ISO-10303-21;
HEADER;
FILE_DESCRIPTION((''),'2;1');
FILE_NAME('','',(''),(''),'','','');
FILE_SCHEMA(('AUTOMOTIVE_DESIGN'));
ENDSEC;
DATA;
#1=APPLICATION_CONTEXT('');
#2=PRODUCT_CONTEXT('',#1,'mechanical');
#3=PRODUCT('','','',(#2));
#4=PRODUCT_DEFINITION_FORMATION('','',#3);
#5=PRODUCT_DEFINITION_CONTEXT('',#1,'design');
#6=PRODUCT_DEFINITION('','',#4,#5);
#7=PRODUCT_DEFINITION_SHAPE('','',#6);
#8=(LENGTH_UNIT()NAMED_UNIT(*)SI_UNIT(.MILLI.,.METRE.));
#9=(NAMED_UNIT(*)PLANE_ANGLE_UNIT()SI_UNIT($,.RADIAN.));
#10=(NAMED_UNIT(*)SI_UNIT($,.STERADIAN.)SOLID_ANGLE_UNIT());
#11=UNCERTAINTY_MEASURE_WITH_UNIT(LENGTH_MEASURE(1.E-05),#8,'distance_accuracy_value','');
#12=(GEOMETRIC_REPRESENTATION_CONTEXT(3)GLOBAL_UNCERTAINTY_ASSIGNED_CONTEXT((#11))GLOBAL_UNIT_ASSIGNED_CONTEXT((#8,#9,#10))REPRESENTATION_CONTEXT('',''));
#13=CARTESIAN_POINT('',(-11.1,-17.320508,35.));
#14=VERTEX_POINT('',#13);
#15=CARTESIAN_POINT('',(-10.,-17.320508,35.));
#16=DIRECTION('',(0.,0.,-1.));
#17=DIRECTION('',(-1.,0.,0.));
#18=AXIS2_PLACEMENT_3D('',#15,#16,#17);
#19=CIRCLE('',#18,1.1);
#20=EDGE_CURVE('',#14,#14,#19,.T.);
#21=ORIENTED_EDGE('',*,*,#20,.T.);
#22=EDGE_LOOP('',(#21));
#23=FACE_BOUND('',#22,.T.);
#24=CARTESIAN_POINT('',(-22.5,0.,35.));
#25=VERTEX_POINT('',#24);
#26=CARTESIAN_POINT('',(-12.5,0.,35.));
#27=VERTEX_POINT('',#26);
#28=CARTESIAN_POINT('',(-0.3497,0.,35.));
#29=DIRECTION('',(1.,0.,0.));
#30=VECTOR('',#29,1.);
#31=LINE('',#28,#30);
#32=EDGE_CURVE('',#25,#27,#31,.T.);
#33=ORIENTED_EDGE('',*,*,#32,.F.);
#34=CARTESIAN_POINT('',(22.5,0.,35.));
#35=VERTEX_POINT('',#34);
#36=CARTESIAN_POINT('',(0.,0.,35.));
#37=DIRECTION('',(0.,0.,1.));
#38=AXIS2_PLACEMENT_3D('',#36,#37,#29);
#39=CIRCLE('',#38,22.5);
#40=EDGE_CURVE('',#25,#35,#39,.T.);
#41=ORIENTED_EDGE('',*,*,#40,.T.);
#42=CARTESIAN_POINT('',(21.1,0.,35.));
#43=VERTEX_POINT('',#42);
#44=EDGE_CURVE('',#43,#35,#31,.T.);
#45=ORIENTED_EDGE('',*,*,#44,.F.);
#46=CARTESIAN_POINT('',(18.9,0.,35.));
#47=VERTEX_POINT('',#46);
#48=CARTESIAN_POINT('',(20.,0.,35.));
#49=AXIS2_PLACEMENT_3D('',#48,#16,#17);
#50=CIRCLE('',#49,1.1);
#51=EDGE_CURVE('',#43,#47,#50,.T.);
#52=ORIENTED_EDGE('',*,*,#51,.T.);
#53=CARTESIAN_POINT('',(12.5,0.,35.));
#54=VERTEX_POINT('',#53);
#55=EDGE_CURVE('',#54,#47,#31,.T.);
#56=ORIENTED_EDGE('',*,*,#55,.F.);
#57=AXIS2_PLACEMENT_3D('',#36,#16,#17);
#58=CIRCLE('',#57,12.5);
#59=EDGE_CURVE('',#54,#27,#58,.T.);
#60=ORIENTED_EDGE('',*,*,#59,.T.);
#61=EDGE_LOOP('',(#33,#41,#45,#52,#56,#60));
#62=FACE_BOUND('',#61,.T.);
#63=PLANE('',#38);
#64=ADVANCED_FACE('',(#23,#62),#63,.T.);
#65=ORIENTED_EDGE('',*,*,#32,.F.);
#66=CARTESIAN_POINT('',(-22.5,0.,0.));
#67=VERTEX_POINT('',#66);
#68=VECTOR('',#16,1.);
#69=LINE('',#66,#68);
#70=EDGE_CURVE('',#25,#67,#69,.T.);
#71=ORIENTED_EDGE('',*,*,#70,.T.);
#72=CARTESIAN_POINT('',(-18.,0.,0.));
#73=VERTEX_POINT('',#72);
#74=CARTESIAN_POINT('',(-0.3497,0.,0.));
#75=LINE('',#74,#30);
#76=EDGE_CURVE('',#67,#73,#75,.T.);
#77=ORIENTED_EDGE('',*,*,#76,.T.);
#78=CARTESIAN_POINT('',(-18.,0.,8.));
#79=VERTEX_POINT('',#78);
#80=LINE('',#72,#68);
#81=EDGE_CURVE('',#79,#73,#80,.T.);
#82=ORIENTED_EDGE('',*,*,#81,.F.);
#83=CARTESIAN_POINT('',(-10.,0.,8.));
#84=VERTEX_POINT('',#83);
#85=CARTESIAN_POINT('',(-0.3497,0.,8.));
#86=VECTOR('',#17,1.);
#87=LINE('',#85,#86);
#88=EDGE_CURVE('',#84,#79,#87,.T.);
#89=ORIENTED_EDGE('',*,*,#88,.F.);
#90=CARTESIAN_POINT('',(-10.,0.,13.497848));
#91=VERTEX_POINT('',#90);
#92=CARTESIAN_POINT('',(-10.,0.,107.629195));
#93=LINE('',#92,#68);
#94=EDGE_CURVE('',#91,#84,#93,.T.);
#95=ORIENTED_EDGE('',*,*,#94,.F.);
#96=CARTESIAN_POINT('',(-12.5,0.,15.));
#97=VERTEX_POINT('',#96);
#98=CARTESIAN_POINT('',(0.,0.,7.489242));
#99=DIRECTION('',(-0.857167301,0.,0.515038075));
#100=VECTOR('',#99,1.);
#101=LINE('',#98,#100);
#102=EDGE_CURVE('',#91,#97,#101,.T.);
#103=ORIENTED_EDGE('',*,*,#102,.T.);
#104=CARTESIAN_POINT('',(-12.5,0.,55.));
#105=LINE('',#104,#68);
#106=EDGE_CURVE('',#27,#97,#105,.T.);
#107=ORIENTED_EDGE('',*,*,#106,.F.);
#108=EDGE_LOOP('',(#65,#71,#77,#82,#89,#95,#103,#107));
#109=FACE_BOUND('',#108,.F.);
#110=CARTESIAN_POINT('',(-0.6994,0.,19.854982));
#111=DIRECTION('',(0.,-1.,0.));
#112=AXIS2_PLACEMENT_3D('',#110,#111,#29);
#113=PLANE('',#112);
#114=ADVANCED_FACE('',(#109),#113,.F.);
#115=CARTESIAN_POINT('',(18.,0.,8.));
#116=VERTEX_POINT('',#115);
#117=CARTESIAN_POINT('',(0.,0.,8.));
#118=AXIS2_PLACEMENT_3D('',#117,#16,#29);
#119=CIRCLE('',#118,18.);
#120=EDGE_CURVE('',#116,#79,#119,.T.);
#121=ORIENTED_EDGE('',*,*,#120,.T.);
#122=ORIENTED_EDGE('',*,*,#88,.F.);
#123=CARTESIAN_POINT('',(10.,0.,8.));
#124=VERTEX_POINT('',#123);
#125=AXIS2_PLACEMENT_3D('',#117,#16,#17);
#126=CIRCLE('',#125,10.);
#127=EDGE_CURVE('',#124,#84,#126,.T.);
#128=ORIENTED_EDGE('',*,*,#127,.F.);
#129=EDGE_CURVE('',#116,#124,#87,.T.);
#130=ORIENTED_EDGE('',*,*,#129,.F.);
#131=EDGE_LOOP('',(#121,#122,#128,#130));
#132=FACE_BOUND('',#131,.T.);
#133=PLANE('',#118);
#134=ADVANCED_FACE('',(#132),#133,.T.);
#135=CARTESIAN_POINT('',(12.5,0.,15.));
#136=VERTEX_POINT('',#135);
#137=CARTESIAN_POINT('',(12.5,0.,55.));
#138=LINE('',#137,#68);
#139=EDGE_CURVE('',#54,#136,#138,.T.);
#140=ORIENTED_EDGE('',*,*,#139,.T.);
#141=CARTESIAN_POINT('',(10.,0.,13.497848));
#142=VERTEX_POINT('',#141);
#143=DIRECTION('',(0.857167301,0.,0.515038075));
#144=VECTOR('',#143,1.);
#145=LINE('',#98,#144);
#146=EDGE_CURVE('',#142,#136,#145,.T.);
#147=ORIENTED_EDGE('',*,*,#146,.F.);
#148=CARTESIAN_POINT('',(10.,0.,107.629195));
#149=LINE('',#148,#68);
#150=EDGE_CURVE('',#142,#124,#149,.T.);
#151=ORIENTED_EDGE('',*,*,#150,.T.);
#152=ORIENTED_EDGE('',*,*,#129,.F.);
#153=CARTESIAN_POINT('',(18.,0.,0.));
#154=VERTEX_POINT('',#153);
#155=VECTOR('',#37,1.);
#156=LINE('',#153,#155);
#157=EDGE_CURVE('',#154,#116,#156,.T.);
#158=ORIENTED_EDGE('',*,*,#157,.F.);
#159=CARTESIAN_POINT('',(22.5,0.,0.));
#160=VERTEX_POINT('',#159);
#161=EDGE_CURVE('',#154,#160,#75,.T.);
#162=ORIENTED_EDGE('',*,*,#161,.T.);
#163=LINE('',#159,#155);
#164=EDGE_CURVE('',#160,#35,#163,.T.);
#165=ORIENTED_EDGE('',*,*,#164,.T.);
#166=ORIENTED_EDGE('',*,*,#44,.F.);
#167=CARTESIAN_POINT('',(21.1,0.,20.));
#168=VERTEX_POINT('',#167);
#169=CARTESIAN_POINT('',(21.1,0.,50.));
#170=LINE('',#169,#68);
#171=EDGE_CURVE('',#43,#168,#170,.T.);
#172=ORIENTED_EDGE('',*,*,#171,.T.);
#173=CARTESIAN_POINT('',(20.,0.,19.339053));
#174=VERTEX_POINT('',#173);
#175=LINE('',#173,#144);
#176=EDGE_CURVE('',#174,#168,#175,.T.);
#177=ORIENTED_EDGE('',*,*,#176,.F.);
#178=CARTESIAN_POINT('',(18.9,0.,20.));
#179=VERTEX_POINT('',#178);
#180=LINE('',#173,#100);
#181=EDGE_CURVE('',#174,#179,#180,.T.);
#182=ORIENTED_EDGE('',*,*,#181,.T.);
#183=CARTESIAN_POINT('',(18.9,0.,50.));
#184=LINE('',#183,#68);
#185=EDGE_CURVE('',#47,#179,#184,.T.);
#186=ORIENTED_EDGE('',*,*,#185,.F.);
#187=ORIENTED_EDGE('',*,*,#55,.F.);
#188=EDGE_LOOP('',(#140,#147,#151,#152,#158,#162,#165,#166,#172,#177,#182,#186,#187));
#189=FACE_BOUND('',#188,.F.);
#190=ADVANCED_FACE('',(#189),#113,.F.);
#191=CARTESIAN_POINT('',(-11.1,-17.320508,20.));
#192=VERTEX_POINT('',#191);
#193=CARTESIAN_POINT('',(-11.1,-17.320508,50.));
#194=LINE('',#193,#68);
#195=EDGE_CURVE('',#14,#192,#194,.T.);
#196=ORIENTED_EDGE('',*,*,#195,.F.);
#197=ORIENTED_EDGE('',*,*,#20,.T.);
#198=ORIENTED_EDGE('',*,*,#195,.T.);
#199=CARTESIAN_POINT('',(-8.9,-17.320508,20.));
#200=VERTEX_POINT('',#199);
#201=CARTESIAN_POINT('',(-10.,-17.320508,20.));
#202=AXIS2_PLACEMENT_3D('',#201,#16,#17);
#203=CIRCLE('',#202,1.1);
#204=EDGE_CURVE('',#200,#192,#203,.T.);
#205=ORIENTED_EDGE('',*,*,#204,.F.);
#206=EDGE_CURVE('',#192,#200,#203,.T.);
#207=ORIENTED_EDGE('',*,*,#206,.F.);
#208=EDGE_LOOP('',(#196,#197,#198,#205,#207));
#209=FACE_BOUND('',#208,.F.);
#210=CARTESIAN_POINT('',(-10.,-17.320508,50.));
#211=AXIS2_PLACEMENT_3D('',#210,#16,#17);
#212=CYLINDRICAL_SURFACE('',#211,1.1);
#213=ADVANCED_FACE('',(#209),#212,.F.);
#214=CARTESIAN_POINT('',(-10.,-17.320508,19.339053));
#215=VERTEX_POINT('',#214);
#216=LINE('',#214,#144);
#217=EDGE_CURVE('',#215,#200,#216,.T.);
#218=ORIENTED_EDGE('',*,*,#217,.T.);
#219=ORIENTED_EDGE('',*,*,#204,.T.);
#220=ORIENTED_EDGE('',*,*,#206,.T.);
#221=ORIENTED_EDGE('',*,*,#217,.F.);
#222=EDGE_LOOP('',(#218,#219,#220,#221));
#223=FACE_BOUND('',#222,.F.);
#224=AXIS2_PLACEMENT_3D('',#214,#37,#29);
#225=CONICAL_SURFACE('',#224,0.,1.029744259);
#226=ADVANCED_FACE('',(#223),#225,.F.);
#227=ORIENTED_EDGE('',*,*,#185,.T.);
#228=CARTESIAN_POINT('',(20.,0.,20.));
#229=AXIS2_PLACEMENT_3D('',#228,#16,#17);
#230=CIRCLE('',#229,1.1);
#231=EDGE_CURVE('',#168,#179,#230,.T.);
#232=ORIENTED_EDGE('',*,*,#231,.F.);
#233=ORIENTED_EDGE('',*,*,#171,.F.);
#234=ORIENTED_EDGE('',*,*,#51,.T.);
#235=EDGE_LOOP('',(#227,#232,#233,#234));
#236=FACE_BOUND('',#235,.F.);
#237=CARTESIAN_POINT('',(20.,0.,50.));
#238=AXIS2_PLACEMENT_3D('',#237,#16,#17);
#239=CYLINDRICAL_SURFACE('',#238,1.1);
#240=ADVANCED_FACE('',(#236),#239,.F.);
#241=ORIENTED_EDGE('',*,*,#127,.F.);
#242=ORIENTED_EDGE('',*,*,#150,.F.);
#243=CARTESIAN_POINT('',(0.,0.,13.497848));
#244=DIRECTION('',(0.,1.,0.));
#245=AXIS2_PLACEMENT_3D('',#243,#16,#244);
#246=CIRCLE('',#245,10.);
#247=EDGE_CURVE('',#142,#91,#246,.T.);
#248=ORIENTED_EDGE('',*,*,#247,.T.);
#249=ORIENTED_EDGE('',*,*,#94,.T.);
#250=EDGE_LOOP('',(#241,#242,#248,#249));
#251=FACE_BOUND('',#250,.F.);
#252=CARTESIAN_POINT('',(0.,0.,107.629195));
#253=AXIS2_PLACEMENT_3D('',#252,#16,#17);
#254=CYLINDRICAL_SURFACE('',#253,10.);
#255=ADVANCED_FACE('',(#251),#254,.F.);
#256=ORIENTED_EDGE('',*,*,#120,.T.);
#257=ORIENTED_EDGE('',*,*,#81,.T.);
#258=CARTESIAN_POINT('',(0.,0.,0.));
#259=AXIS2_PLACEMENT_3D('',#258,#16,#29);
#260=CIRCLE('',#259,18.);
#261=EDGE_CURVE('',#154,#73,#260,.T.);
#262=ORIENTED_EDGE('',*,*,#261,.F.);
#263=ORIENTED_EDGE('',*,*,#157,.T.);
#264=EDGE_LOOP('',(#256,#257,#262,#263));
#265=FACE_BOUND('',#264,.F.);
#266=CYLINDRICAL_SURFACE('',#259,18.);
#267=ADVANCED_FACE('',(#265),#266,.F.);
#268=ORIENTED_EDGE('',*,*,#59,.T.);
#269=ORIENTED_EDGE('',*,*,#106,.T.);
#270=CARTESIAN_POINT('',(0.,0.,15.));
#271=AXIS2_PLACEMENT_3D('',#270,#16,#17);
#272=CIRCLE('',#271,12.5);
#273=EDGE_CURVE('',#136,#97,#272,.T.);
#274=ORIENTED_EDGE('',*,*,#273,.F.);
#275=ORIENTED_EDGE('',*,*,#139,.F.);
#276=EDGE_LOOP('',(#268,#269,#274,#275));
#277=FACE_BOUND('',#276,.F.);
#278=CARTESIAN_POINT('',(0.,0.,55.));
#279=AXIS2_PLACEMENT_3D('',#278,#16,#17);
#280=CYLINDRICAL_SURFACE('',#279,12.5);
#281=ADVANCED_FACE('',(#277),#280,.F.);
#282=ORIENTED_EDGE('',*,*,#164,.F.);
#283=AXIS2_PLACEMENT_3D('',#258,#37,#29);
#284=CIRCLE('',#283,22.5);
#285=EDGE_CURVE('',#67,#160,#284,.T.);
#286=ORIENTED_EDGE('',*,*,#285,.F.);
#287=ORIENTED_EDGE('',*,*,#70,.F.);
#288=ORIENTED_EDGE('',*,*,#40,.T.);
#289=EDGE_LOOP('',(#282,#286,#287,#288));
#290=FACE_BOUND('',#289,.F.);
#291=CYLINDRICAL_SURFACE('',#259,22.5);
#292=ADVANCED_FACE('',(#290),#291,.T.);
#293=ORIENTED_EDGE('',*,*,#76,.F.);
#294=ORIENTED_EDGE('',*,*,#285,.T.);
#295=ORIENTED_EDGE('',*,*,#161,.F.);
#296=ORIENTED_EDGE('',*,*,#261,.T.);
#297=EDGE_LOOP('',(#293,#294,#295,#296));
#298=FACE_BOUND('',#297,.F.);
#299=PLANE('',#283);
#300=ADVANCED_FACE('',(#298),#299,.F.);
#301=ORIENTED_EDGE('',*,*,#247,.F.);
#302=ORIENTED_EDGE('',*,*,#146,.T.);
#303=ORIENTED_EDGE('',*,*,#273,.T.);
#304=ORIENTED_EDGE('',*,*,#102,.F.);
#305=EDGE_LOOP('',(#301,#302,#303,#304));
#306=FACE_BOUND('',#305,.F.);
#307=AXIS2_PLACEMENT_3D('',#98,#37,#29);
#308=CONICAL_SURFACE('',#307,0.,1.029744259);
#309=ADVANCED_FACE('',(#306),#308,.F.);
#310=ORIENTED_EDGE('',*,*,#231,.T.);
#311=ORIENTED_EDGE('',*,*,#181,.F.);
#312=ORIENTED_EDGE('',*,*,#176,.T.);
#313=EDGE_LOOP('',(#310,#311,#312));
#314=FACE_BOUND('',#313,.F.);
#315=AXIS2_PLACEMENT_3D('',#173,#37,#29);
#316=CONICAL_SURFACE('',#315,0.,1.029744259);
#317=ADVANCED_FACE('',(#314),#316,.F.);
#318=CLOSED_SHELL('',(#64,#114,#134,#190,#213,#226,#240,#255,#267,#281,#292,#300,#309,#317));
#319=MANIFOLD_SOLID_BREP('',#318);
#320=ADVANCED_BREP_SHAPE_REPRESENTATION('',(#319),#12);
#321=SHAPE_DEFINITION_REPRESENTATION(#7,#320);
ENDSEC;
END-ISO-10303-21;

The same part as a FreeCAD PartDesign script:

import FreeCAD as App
import Part
import Sketcher

doc = App.newDocument("Part")
params = doc.addObject("Spreadsheet::Sheet", "Params")
for row, (alias, value) in enumerate([
    ("sketch1_diameter", "45 mm"),
    ("pad1_length", "35 mm"),
    ("sketch2_diameter", "36 mm"),
    ("pocket1_length", "8 mm"),
    ("sketch3_diameter", "25 mm"),
    ("hole_diameter", "25 mm"),
    ("hole_depth", "20 mm"),
    ("sketch4_diameter", "20 mm"),
    ("hole2_diameter", "20 mm"),
    ("sketch5_diameter", "2.2 mm"),
    ("hole3_diameter", "2.2 mm"),
    ("hole3_depth", "15 mm"),
    ("pocket2_length", "25 mm"),
], start=1):
    params.set(f"A{row}", alias)
    params.set(f"B{row}", "=" + value)
    params.setAlias(f"B{row}", alias)

body = doc.addObject("PartDesign::Body", "Body")

# Sketch on XY plane
sketch1 = body.newObject("Sketcher::SketchObject", "Sketch")
sketch1.AttachmentSupport = (doc.getObject("XY_Plane"), [""])
sketch1.MapMode = "FlatFace"
sketch1.addGeometry(Part.Circle(App.Vector(0, 0, 0), App.Vector(0, 0, 1), 22.5), False)
sketch1.addConstraint(Sketcher.Constraint("Coincident", 0, 3, -1, 1))
sketch1.addConstraint(Sketcher.Constraint("Diameter", 0, 45.0))
sketch1.setExpression("Constraints[1]", "Params.sketch1_diameter")
pad1 = body.newObject("PartDesign::Pad", "Pad")
pad1.Profile = sketch1
pad1.setExpression("Length", "Params.pad1_length")

# Sketch on XY plane
sketch2 = body.newObject("Sketcher::SketchObject", "Sketch001")
sketch2.AttachmentSupport = (doc.getObject("XY_Plane"), [""])
sketch2.MapMode = "FlatFace"
sketch2.addGeometry(Part.Circle(App.Vector(0, 0, 0), App.Vector(0, 0, 1), 18), False)
sketch2.addConstraint(Sketcher.Constraint("Coincident", 0, 3, -1, 1))
sketch2.addConstraint(Sketcher.Constraint("Diameter", 0, 36.0))
sketch2.setExpression("Constraints[1]", "Params.sketch2_diameter")
pocket1 = body.newObject("PartDesign::Pocket", "Pocket")
pocket1.Profile = sketch2
pocket1.setExpression("Length", "Params.pocket1_length")
pocket1.Reversed = True

# Sketch on XY plane
sketch3 = body.newObject("Sketcher::SketchObject", "Sketch002")
sketch3.AttachmentSupport = (doc.getObject("XY_Plane"), [""])
sketch3.MapMode = "FlatFace"
sketch3.AttachmentOffset = App.Placement(App.Vector(0, 0, 35), App.Rotation())
sketch3.addGeometry(Part.Circle(App.Vector(0, 0, 0), App.Vector(0, 0, 1), 12.5), False)
sketch3.addConstraint(Sketcher.Constraint("Coincident", 0, 3, -1, 1))
sketch3.addConstraint(Sketcher.Constraint("Diameter", 0, 25.0))
sketch3.setExpression("Constraints[1]", "Params.sketch3_diameter")
doc.recompute()
hole = body.newObject("PartDesign::Hole", "Hole")
hole.Profile = sketch3
hole.ThreadType = "None"
hole.setExpression("Diameter", "Params.hole_diameter")
hole.DepthType = "Dimension"
hole.setExpression("Depth", "Params.hole_depth")
hole.DrillPoint = "Angled"
hole.DrillPointAngle = 118

# Sketch on XY plane
sketch4 = body.newObject("Sketcher::SketchObject", "Sketch003")
sketch4.AttachmentSupport = (doc.getObject("XY_Plane"), [""])
sketch4.MapMode = "FlatFace"
sketch4.AttachmentOffset = App.Placement(App.Vector(0, 0, 35), App.Rotation())
sketch4.addGeometry(Part.Circle(App.Vector(0, 0, 0), App.Vector(0, 0, 1), 10), False)
sketch4.addConstraint(Sketcher.Constraint("Coincident", 0, 3, -1, 1))
sketch4.addConstraint(Sketcher.Constraint("Diameter", 0, 20.0))
sketch4.setExpression("Constraints[1]", "Params.sketch4_diameter")
doc.recompute()
hole2 = body.newObject("PartDesign::Hole", "Hole001")
hole2.Profile = sketch4
hole2.ThreadType = "None"
hole2.setExpression("Diameter", "Params.hole2_diameter")
hole2.DepthType = "ThroughAll"

# Sketch on XY plane
sketch5 = body.newObject("Sketcher::SketchObject", "Sketch004")
sketch5.AttachmentSupport = (doc.getObject("XY_Plane"), [""])
sketch5.MapMode = "FlatFace"
sketch5.AttachmentOffset = App.Placement(App.Vector(0, 0, 35), App.Rotation())
sketch5.addGeometry(Part.Circle(App.Vector(20, 0, 0), App.Vector(0, 0, 1), 1.1), False)
sketch5.addGeometry(Part.Circle(App.Vector(-10, 17.320508, 0), App.Vector(0, 0, 1), 1.1), False)
sketch5.addGeometry(Part.Circle(App.Vector(-10, -17.320508, 0), App.Vector(0, 0, 1), 1.1), False)
sketch5.addConstraint(Sketcher.Constraint("Equal", 0, 1))
sketch5.addConstraint(Sketcher.Constraint("Equal", 1, 2))
sketch5.addConstraint(Sketcher.Constraint("Symmetric", 1, 3, 2, 3, -1))
sketch5.addConstraint(Sketcher.Constraint("PointOnObject", 0, 3, -1))
sketch5.addConstraint(Sketcher.Constraint("Diameter", 0, 2.2))
sketch5.addConstraint(Sketcher.Constraint("DistanceX", -1, 1, 0, 3, 20.0))
sketch5.addConstraint(Sketcher.Constraint("DistanceX", 1, 3, -1, 1, 10.0))
sketch5.addConstraint(Sketcher.Constraint("DistanceY", -1, 1, 1, 3, 17.320508))
sketch5.setExpression("Constraints[4]", "Params.sketch5_diameter")
doc.recompute()
hole3 = body.newObject("PartDesign::Hole", "Hole002")
hole3.Profile = sketch5
hole3.ThreadType = "None"
hole3.setExpression("Diameter", "Params.hole3_diameter")
hole3.DepthType = "Dimension"
hole3.setExpression("Depth", "Params.hole3_depth")
hole3.DrillPoint = "Angled"
hole3.DrillPointAngle = 118

# Sketch on XZ plane
sketch6 = body.newObject("Sketcher::SketchObject", "Sketch005")
sketch6.AttachmentSupport = (doc.getObject("XZ_Plane"), [""])
sketch6.MapMode = "FlatFace"
sketch6.addGeometry(Part.LineSegment(App.Vector(-30.702736, 45.328699, 0), App.Vector(-30.702736, -5.618735, 0)), False)
sketch6.addGeometry(Part.LineSegment(App.Vector(-30.702736, -5.618735, 0), App.Vector(29.303936, -5.618735, 0)), False)
sketch6.addGeometry(Part.LineSegment(App.Vector(29.303936, -5.618735, 0), App.Vector(29.303936, 45.328699, 0)), False)
sketch6.addGeometry(Part.LineSegment(App.Vector(29.303936, 45.328699, 0), App.Vector(-30.702736, 45.328699, 0)), False)
sketch6.addConstraint(Sketcher.Constraint("Coincident", 0, 2, 1, 1))
sketch6.addConstraint(Sketcher.Constraint("Coincident", 1, 2, 2, 1))
sketch6.addConstraint(Sketcher.Constraint("Coincident", 2, 2, 3, 1))
sketch6.addConstraint(Sketcher.Constraint("Coincident", 3, 2, 0, 1))
sketch6.addConstraint(Sketcher.Constraint("Vertical", 0))
sketch6.addConstraint(Sketcher.Constraint("Horizontal", 1))
sketch6.addConstraint(Sketcher.Constraint("Vertical", 2))
sketch6.addConstraint(Sketcher.Constraint("Horizontal", 3))
sketch6.addConstraint(Sketcher.Constraint("DistanceY", -1, 1, 2, 2, 45.328699))
sketch6.addConstraint(Sketcher.Constraint("DistanceX", 1, 1, 1, 2, 60.006673))
sketch6.addConstraint(Sketcher.Constraint("DistanceY", 0, 2, 0, 1, 50.947434))
sketch6.addConstraint(Sketcher.Constraint("DistanceX", 0, 2, -1, 1, 30.702736))
pocket2 = body.newObject("PartDesign::Pocket", "Pocket001")
pocket2.Profile = sketch6
pocket2.setExpression("Length", "Params.pocket2_length")

doc.recompute()
